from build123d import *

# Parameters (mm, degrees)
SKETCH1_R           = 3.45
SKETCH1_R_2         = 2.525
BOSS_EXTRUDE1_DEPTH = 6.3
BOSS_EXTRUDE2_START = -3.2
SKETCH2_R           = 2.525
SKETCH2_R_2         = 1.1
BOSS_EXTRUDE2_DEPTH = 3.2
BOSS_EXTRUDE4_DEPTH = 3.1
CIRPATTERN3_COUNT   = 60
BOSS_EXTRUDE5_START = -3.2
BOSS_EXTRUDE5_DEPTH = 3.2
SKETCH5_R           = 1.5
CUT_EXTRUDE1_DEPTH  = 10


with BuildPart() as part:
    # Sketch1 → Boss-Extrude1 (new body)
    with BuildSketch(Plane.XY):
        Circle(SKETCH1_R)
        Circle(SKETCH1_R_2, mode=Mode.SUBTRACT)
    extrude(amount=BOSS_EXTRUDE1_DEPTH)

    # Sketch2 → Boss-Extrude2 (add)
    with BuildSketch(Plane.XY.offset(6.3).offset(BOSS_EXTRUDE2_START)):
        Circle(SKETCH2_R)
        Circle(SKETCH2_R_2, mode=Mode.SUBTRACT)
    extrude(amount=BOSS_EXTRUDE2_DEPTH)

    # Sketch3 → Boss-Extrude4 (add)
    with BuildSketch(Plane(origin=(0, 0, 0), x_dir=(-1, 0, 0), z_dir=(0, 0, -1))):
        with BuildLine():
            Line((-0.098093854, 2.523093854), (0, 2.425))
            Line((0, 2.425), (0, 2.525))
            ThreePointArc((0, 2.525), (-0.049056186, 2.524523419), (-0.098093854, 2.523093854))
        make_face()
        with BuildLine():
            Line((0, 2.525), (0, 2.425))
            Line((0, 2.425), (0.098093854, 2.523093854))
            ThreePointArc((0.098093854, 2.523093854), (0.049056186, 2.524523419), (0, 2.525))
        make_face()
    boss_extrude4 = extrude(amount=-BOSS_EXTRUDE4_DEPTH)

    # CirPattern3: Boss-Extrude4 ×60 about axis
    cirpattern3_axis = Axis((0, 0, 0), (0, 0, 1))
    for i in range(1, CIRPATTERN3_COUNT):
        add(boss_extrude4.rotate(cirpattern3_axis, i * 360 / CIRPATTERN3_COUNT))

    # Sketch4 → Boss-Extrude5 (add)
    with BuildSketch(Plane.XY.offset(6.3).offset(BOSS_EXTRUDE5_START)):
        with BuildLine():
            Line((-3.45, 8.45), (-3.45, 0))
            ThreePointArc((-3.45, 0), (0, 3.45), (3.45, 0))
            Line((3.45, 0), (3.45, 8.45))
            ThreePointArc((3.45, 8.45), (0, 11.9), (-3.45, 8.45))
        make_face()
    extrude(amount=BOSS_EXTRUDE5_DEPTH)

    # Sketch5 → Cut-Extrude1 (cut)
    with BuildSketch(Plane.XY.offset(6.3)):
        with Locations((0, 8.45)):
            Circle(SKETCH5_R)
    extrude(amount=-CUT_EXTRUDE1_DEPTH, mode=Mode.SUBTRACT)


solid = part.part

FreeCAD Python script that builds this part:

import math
import FreeCAD as App
import Part
import Sketcher
from FreeCAD import Vector

doc = App.newDocument("Part")
params = doc.addObject("Spreadsheet::Sheet", "Params")
for row, (alias, value) in enumerate([
    ("sketch1_diameter", "6.9 mm"),
    ("sketch1_diameter2", "5.05 mm"),
    ("pad1_length", "6.3 mm"),
    ("sketch2_diameter", "2.2 mm"),
    ("sketch2_diameter2", "5.05 mm"),
    ("pad2_length", "3.2 mm"),
    ("pad3_length", "3.1 mm"),
    ("sketch4_radius", "3.45 mm"),
    ("sketch4_height", "8.45 mm"),
    ("pad4_length", "3.2 mm"),
    ("sketch5_diameter", "3 mm"),
    ("pocket1_length", "10 mm"),
], start=1):
    params.set(f"A{row}", alias)
    params.set(f"B{row}", "=" + value)
    params.setAlias(f"B{row}", alias)

body = doc.addObject("PartDesign::Body", "Body")

# Sketch on XY plane
sketch1 = body.newObject("Sketcher::SketchObject", "Sketch")
sketch1.AttachmentSupport = (doc.getObject("XY_Plane"), [""])
sketch1.MapMode = "FlatFace"
sketch1.addGeometry([
    Part.Circle(Vector(0, 0, 0), Vector(0, 0, 1), 3.45),
    Part.Circle(Vector(0, 0, 0), Vector(0, 0, 1), 2.525),
], False)
sketch1.addConstraint([
    Sketcher.Constraint("Coincident", 0, 3, -1, 1),
    Sketcher.Constraint("Coincident", 1, 3, -1, 1),
    Sketcher.Constraint("Diameter", 0, 6.9),
    Sketcher.Constraint("Diameter", 1, 5.05),
])
sketch1.setExpression("Constraints[2]", "Params.sketch1_diameter")
sketch1.setExpression("Constraints[3]", "Params.sketch1_diameter2")
pad1 = body.newObject("PartDesign::Pad", "Pad")
pad1.Profile = sketch1
pad1.setExpression("Length", "Params.pad1_length")

# Sketch on XY plane
sketch2 = body.newObject("Sketcher::SketchObject", "Sketch001")
sketch2.AttachmentSupport = (doc.getObject("XY_Plane"), [""])
sketch2.MapMode = "FlatFace"
sketch2.AttachmentOffset = App.Placement(Vector(0, 0, 3.1), App.Rotation())
sketch2.addGeometry([
    Part.Circle(Vector(0, 0, 0), Vector(0, 0, 1), 2.525),
    Part.Circle(Vector(0, 0, 0), Vector(0, 0, 1), 1.1),
], False)
sketch2.addConstraint([
    Sketcher.Constraint("Coincident", 0, 3, -1, 1),
    Sketcher.Constraint("Coincident", 1, 3, -1, 1),
    Sketcher.Constraint("Diameter", 1, 2.2),
    Sketcher.Constraint("Diameter", 0, 5.05),
])
sketch2.setExpression("Constraints[2]", "Params.sketch2_diameter")
sketch2.setExpression("Constraints[3]", "Params.sketch2_diameter2")
pad2 = body.newObject("PartDesign::Pad", "Pad001")
pad2.Profile = sketch2
pad2.setExpression("Length", "Params.pad2_length")

# Sketch on XY plane
sketch3 = body.newObject("Sketcher::SketchObject", "Sketch002")
sketch3.AttachmentSupport = (doc.getObject("XY_Plane"), [""])
sketch3.MapMode = "FlatFace"
sketch3.addGeometry([
    Part.LineSegment(Vector(0.098094, 2.523094, 0), Vector(0, 2.425, 0)),
    Part.LineSegment(Vector(0, 2.425, 0), Vector(-0.098094, 2.523094, 0)),
    Part.ArcOfCircle(Part.Circle(Vector(0, 0.000002, 0), Vector(0, 0, 1), 2.524998), math.radians(89.999999), math.radians(92.226448)),
    Part.ArcOfCircle(Part.Circle(Vector(0, 0.000002, 0), Vector(0, 0, 1), 2.524998), math.radians(87.773552), math.radians(90.000001)),
], False)
sketch3.addConstraint([
    Sketcher.Constraint("Coincident", 0, 2, 1, 1),
    Sketcher.Constraint("Coincident", 1, 2, 2, 2),
    Sketcher.Constraint("Tangent", 2, 1, 3, 2),
    Sketcher.Constraint("Coincident", 3, 1, 0, 1),
    Sketcher.Constraint("Coincident", 2, 3, -1, 1),
    Sketcher.Constraint("Equal", 2, 3),
    Sketcher.Constraint("PointOnObject", 0, 2, -2),
    Sketcher.Constraint("PointOnObject", 2, 1, -2),
    Sketcher.Constraint("Perpendicular", 0, 1),
    Sketcher.Constraint("Horizontal", 1, 2, 3, 1),
    Sketcher.Constraint("DistanceY", 0, 2, 2, 1, 0.1),
    Sketcher.Constraint("DistanceY", -1, 1, 0, 2, 2.425),
])
pad3 = body.newObject("PartDesign::Pad", "Pad002")
pad3.Profile = sketch3
pad3.setExpression("Length", "Params.pad3_length")
doc.recompute()

polarpattern = body.newObject("PartDesign::PolarPattern", "PolarPattern")
polarpattern.Originals = [pad3]
polarpattern.Axis = (doc.getObject("Z_Axis"), [""])
polarpattern.Angle = 360
polarpattern.Occurrences = 60
body.Tip = polarpattern

# Sketch on XY plane
sketch4 = body.newObject("Sketcher::SketchObject", "Sketch003")
sketch4.AttachmentSupport = (doc.getObject("XY_Plane"), [""])
sketch4.MapMode = "FlatFace"
sketch4.AttachmentOffset = App.Placement(Vector(0, 0, 3.1), App.Rotation())
sketch4.addGeometry([
    Part.LineSegment(Vector(-3.45, 8.45, 0), Vector(-3.45, 0, 0)),
    Part.ArcOfCircle(Part.Circle(Vector(0, 0, 0), Vector(0, 0, 1), 3.45), math.radians(0), math.radians(180)),
    Part.LineSegment(Vector(3.45, 0, 0), Vector(3.45, 8.45, 0)),
    Part.ArcOfCircle(Part.Circle(Vector(0, 8.45, 0), Vector(0, 0, 1), 3.45), math.radians(0), math.radians(180)),
], False)
sketch4.addConstraint([
    Sketcher.Constraint("Tangent", 0, 2, 1, 2),
    Sketcher.Constraint("Tangent", 1, 1, 2, 1),
    Sketcher.Constraint("Tangent", 2, 2, 3, 1),
    Sketcher.Constraint("Tangent", 3, 2, 0, 1),
    Sketcher.Constraint("Vertical", 0),
    Sketcher.Constraint("Vertical", 2),
    Sketcher.Constraint("Coincident", 1, 3, -1, 1),
    Sketcher.Constraint("Radius", 1, 3.45),
    Sketcher.Constraint("DistanceY", 0, 2, 0, 1, 8.45),
])
sketch4.setExpression("Constraints[7]", "Params.sketch4_radius")
sketch4.setExpression("Constraints[8]", "Params.sketch4_height")
pad4 = body.newObject("PartDesign::Pad", "Pad003")
pad4.Profile = sketch4
pad4.setExpression("Length", "Params.pad4_length")

# Sketch on XY plane
sketch5 = body.newObject("Sketcher::SketchObject", "Sketch004")
sketch5.AttachmentSupport = (doc.getObject("XY_Plane"), [""])
sketch5.MapMode = "FlatFace"
sketch5.AttachmentOffset = App.Placement(Vector(0, 0, 6.3), App.Rotation())
sketch5.addGeometry(Part.Circle(Vector(0, 8.45, 0), Vector(0, 0, 1), 1.5), False)
sketch5.addConstraint([
    Sketcher.Constraint("PointOnObject", 0, 3, -2),
    Sketcher.Constraint("Diameter", 0, 3.0),
    Sketcher.Constraint("DistanceY", -1, 1, 0, 3, 8.45),
])
sketch5.setExpression("Constraints[1]", "Params.sketch5_diameter")
pocket1 = body.newObject("PartDesign::Pocket", "Pocket")
pocket1.Profile = sketch5
pocket1.setExpression("Length", "Params.pocket1_length")

doc.recompute()
